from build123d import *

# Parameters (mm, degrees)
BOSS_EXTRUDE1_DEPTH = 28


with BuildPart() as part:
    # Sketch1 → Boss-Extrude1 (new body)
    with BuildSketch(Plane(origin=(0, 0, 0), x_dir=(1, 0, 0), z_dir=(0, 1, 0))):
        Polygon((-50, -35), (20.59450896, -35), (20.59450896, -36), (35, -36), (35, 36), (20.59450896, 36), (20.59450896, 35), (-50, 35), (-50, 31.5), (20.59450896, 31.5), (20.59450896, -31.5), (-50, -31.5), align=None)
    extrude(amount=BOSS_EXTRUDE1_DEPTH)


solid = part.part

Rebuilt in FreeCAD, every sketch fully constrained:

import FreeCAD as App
import Part
import Sketcher
from FreeCAD import Vector


def add_polygon(sketch, points):
    """Adds a closed chain of lines whose ends are joined by coincident constraints."""
    first, n = sketch.GeometryCount, len(points)
    for a, b in zip(points, points[1:] + points[:1]):
        sketch.addGeometry(Part.LineSegment(App.Vector(*a, 0), App.Vector(*b, 0)), False)
    for i in range(n):
        sketch.addConstraint(Sketcher.Constraint("Coincident", first + i, 2, first + (i + 1) % n, 1))

doc = App.newDocument("Part")
body = doc.addObject("PartDesign::Body", "Body")

sketch1 = body.newObject("Sketcher::SketchObject", "Sketch")
sketch1.AttachmentSupport = (doc.getObject("XZ_Plane"), [""])
sketch1.MapMode = "FlatFace"
add_polygon(sketch1, [(-50, 35), (20.594509, 35), (20.594509, 36), (35, 36), (35, -36), (20.594509, -36), (20.594509, -35), (-50, -35), (-50, -31.5), (20.594509, -31.5), (20.594509, 31.5), (-50, 31.5)])
sketch1.addConstraint([
    Sketcher.Constraint("Horizontal", 0),
    Sketcher.Constraint("Vertical", 1),
    Sketcher.Constraint("Horizontal", 2),
    Sketcher.Constraint("Vertical", 3),
    Sketcher.Constraint("Horizontal", 4),
    Sketcher.Constraint("Vertical", 5),
    Sketcher.Constraint("Horizontal", 6),
    Sketcher.Constraint("Vertical", 7),
    Sketcher.Constraint("Horizontal", 8),
    Sketcher.Constraint("Vertical", 9),
    Sketcher.Constraint("Horizontal", 10),
    Sketcher.Constraint("Vertical", 11),
    Sketcher.Constraint("Symmetric", 1, 2, 4, 2, -1),
    Sketcher.Constraint("Symmetric", 7, 2, 10, 2, -1),
    Sketcher.Constraint("Vertical", 5, 2, 8, 2),
    Sketcher.Constraint("Equal", 1, 5),
    Sketcher.Constraint("DistanceY", 1, 1, 1, 2, 1.0),
    Sketcher.Constraint("DistanceY", 3, 2, 3, 1, 72.0),
    Sketcher.Constraint("DistanceY", 9, 1, 9, 2, 63.0),
    Sketcher.Constraint("DistanceX", -1, 1, 2, 2, 35.0),
    Sketcher.Constraint("DistanceX", 6, 2, -1, 1, 50.0),
    Sketcher.Constraint("DistanceX", 0, 1, 0, 2, 70.594509),
])
pad1 = body.newObject("PartDesign::Pad", "Pad")
pad1.Profile = sketch1
pad1.Length = 28
pad1.Reversed = True

doc.recompute()
